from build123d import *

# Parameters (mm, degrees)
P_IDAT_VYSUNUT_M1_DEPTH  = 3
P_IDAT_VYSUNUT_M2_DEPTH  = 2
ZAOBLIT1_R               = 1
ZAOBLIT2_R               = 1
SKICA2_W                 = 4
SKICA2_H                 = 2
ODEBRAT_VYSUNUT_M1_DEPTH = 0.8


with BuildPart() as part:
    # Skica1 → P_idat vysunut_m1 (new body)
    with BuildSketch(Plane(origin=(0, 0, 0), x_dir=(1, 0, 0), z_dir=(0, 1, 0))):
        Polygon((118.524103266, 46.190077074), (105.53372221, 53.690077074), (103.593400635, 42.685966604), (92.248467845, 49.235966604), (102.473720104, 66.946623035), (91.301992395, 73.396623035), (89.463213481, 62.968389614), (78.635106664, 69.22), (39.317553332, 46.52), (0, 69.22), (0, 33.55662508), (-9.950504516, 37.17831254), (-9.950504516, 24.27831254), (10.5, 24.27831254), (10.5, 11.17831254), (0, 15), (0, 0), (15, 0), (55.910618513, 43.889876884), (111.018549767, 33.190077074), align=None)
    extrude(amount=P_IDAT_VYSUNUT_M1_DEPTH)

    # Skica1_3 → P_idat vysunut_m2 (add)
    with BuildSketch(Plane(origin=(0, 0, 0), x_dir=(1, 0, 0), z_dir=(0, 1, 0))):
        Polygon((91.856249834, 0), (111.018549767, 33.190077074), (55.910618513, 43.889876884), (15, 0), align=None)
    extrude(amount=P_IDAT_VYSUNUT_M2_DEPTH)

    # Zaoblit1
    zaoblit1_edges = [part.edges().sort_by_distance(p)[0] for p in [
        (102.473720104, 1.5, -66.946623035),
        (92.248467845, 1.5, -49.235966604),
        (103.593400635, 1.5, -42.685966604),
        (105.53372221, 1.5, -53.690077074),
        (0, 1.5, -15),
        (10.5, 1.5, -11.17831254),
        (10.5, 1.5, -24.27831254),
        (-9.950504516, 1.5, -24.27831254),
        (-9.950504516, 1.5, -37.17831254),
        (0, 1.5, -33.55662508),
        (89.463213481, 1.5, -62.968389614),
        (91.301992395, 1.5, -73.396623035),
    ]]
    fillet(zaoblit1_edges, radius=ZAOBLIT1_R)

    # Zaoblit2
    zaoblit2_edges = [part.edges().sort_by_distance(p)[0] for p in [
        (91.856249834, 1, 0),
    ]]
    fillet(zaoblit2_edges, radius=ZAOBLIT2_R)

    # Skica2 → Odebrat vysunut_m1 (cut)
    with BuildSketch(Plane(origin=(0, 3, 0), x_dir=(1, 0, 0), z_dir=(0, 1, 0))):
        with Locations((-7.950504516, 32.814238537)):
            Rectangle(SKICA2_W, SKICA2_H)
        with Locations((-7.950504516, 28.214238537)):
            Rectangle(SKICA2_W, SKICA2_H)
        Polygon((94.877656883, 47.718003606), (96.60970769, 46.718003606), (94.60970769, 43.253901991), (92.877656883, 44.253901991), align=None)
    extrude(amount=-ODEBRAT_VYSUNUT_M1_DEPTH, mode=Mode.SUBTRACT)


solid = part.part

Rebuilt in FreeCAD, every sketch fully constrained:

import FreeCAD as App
import Part
import Sketcher
Q = App.Units.Quantity


def edges_at(feature, points):
    """Names of the edges that pass closest to the given points."""
    edges = feature.Shape.Edges
    near = lambda p: min(range(len(edges)), key=lambda i: edges[i].distToShape(Part.Vertex(*p))[0])
    return sorted({f"Edge{near(p) + 1}" for p in points})

doc = App.newDocument("Part")
body = doc.addObject("PartDesign::Body", "Body")

# Sketch on XZ plane
sketch1 = doc.addObject("Sketcher::SketchObject", "Sketch")
body.addObject(sketch1)
sketch1.AttachmentSupport = (doc.XZ_Plane, [""])
sketch1.MapMode = "FlatFace"
sketch1.addGeometry([
    Part.LineSegment(App.Vector(119, -46, 0), App.Vector(106, -54, 0)),  # 0
    Part.LineSegment(App.Vector(106, -54, 0), App.Vector(104, -43, 0)),  # 1
    Part.LineSegment(App.Vector(104, -43, 0), App.Vector(92, -49, 0)),  # 2
    Part.LineSegment(App.Vector(92, -49, 0), App.Vector(102, -67, 0)),  # 3
    Part.LineSegment(App.Vector(102, -67, 0), App.Vector(91, -73, 0)),  # 4
    Part.LineSegment(App.Vector(91, -73, 0), App.Vector(89, -63, 0)),  # 5
    Part.LineSegment(App.Vector(89, -63, 0), App.Vector(79, -69, 0)),  # 6
    Part.LineSegment(App.Vector(79, -69, 0), App.Vector(39, -47, 0)),  # 7
    Part.LineSegment(App.Vector(39, -47, 0), App.Vector(0, -69, 0)),  # 8
    Part.LineSegment(App.Vector(0, -69, 0), App.Vector(0, -34, 0)),  # 9
    Part.LineSegment(App.Vector(0, -34, 0), App.Vector(-10, -37, 0)),  # 10
    Part.LineSegment(App.Vector(-10, -37, 0), App.Vector(-10, -24, 0)),  # 11
    Part.LineSegment(App.Vector(-10, -24, 0), App.Vector(10, -24, 0)),  # 12
    Part.LineSegment(App.Vector(10, -24, 0), App.Vector(10, -11, 0)),  # 13
    Part.LineSegment(App.Vector(10, -11, 0), App.Vector(0, -15, 0)),  # 14
    Part.LineSegment(App.Vector(0, -15, 0), App.Vector(0, 0, 0)),  # 15
    Part.LineSegment(App.Vector(0, 0, 0), App.Vector(15, 0, 0)),  # 16
    Part.LineSegment(App.Vector(15, 0, 0), App.Vector(56, -44, 0)),  # 17
    Part.LineSegment(App.Vector(56, -44, 0), App.Vector(111, -33, 0)),  # 18
    Part.LineSegment(App.Vector(111, -33, 0), App.Vector(119, -46, 0)),  # 19
], False)
sketch1.addConstraint([
    Sketcher.Constraint("Coincident", 0, 2, 1, 1),
    Sketcher.Constraint("Coincident", 1, 2, 2, 1),
    Sketcher.Constraint("Coincident", 2, 2, 3, 1),
    Sketcher.Constraint("Coincident", 3, 2, 4, 1),
    Sketcher.Constraint("Coincident", 4, 2, 5, 1),
    Sketcher.Constraint("Coincident", 5, 2, 6, 1),
    Sketcher.Constraint("Coincident", 6, 2, 7, 1),
    Sketcher.Constraint("Coincident", 7, 2, 8, 1),
    Sketcher.Constraint("Coincident", 8, 2, 9, 1),
    Sketcher.Constraint("Coincident", 9, 2, 10, 1),
    Sketcher.Constraint("Coincident", 10, 2, 11, 1),
    Sketcher.Constraint("Coincident", 11, 2, 12, 1),
    Sketcher.Constraint("Coincident", 12, 2, 13, 1),
    Sketcher.Constraint("Coincident", 13, 2, 14, 1),
    Sketcher.Constraint("Coincident", 14, 2, 15, 1),
    Sketcher.Constraint("Coincident", 15, 2, 16, 1),
    Sketcher.Constraint("Coincident", 16, 2, 17, 1),
    Sketcher.Constraint("Coincident", 17, 2, 18, 1),
    Sketcher.Constraint("Coincident", 18, 2, 19, 1),
    Sketcher.Constraint("Coincident", 19, 2, 0, 1),
    Sketcher.Constraint("Vertical", 9),
    Sketcher.Constraint("Vertical", 11),
    Sketcher.Constraint("Horizontal", 12),
    Sketcher.Constraint("Vertical", 13),
    Sketcher.Constraint("Vertical", 15),
    Sketcher.Constraint("Horizontal", 16),
    Sketcher.Constraint("Coincident", 15, 2, -1, 1),
    Sketcher.Constraint("PointOnObject", 8, 2, -2),
    Sketcher.Constraint("Parallel", 0, 2),
    Sketcher.Constraint("Perpendicular", 2, 3),
    Sketcher.Constraint("Perpendicular", 3, 4),
    Sketcher.Constraint("Parallel", 1, 5),
    Sketcher.Constraint("Parallel", 4, 6),
    Sketcher.Constraint("Parallel", 6, 8),
    Sketcher.Constraint("Parallel", 10, 14),
    Sketcher.Constraint("Perpendicular", 8, 19),
    Sketcher.Constraint("Horizontal", 6, 2, 8, 2),
    Sketcher.Constraint("Equal", 16, 15),
    Sketcher.Constraint("Equal", 7, 8),
    Sketcher.Constraint("Equal", 5, 10),
    Sketcher.Constraint("Equal", 1, 14),
    Sketcher.Constraint("DistanceX", 16, 1, 16, 2, Q("15 mm")),
    Sketcher.Constraint("Angle", 0, Q("-150 deg")),
    Sketcher.Constraint("Angle", 1, Q("100 deg")),
    Sketcher.Constraint("Angle", 10, Q("-160 deg")),
    Sketcher.Constraint("Distance", 0, Q("15 mm")),
    Sketcher.Constraint("Distance", 17, Q("60 mm")),
    Sketcher.Constraint("DistanceY", 11, 1, 11, 2, Q("12.9 mm")),
    Sketcher.Constraint("DistanceY", 13, 1, 13, 2, Q("13.1 mm")),
    Sketcher.Constraint("DistanceY", 19, 2, 18, 2, Q("13 mm")),
    Sketcher.Constraint("Distance", 2, Q("13.1 mm")),
    Sketcher.Constraint("Distance", 4, Q("12.9 mm")),
    Sketcher.Constraint("Distance", 7, Q("45.4 mm")),
    Sketcher.Constraint("DistanceX", -1, 1, 12, 2, Q("10.5 mm")),
    Sketcher.Constraint("DistanceY", 6, 2, -1, 1, Q("69.22 mm")),
    Sketcher.Constraint("DistanceX", -1, 1, 1, 2, Q("103.593401 mm")),
    Sketcher.Constraint("Distance", 6, Q("12.503221 mm")),
    Sketcher.Constraint("DistanceX", 12, 1, 12, 2, Q("20.450505 mm")),
    Sketcher.Constraint("DistanceX", -1, 1, 17, 2, Q("55.910619 mm")),
])
pad1 = doc.addObject("PartDesign::Pad", "Pad")
body.addObject(pad1)
pad1.Profile = sketch1
pad1.Length = 3
pad1.Reversed = True

# Sketch on XZ plane
sketch2 = doc.addObject("Sketcher::SketchObject", "Sketch001")
body.addObject(sketch2)
sketch2.AttachmentSupport = (doc.XZ_Plane, [""])
sketch2.MapMode = "FlatFace"
sketch2.addGeometry([
    Part.LineSegment(App.Vector(92, 0, 0), App.Vector(111, -33, 0)),
    Part.LineSegment(App.Vector(111, -33, 0), App.Vector(56, -44, 0)),
    Part.LineSegment(App.Vector(56, -44, 0), App.Vector(15, 0, 0)),
    Part.LineSegment(App.Vector(15, 0, 0), App.Vector(92, 0, 0)),
], False)
sketch2.addConstraint([
    Sketcher.Constraint("Coincident", 0, 2, 1, 1),
    Sketcher.Constraint("Coincident", 1, 2, 2, 1),
    Sketcher.Constraint("Coincident", 2, 2, 3, 1),
    Sketcher.Constraint("Coincident", 3, 2, 0, 1),
    Sketcher.Constraint("Horizontal", 3),
    Sketcher.Constraint("PointOnObject", 2, 2, -1),
    Sketcher.Constraint("Angle", 0, Q("-60 deg")),
    Sketcher.Constraint("Distance", 2, Q("60 mm")),
    Sketcher.Constraint("DistanceX", -1, 1, 2, 2, Q("15 mm")),
    Sketcher.Constraint("Distance", 0, Q("38.3246 mm")),
    Sketcher.Constraint("DistanceX", 3, 1, 3, 2, Q("76.85625 mm")),
    Sketcher.Constraint("DistanceY", 1, 2, 0, 2, Q("10.6998 mm")),
])
pad2 = doc.addObject("PartDesign::Pad", "Pad001")
body.addObject(pad2)
pad2.Profile = sketch2
pad2.Length = 2
pad2.Reversed = True
doc.recompute()

fillet = doc.addObject("PartDesign::Fillet", "Fillet")
body.addObject(fillet)
fillet.Base = (pad2, edges_at(pad2, [
    (102.474, 1.5, -66.947),
    (92.248, 1.5, -49.236),
    (103.593, 1.5, -42.686),
    (105.534, 1.5, -53.69),
    (0, 1.5, -15),
    (10.5, 1.5, -11.178),
    (10.5, 1.5, -24.278),
    (-9.951, 1.5, -24.278),
    (-9.951, 1.5, -37.178),
    (0, 1.5, -33.557),
    (89.463, 1.5, -62.968),
    (91.302, 1.5, -73.397),
]))
fillet.Radius = 1
doc.recompute()

fillet2 = doc.addObject("PartDesign::Fillet", "Fillet001")
body.addObject(fillet2)
fillet2.Base = (fillet, edges_at(fillet, [(91.856, 1, 0)]))
fillet2.Radius = 1

# Sketch on XZ plane
sketch3 = doc.addObject("Sketcher::SketchObject", "Sketch002")
body.addObject(sketch3)
sketch3.AttachmentSupport = (doc.XZ_Plane, [""])
sketch3.MapMode = "FlatFace"
sketch3.AttachmentOffset = App.Placement(App.Vector(0, 0, -3), App.Rotation())
sketch3.addGeometry([
    Part.LineSegment(App.Vector(-10, -33.8, 0), App.Vector(-10, -31.8, 0)),  # 0
    Part.LineSegment(App.Vector(-10, -31.8, 0), App.Vector(-6, -31.8, 0)),  # 1
    Part.LineSegment(App.Vector(-6, -31.8, 0), App.Vector(-6, -33.8, 0)),  # 2
    Part.LineSegment(App.Vector(-6, -33.8, 0), App.Vector(-10, -33.8, 0)),  # 3
    Part.LineSegment(App.Vector(-10, -29.2, 0), App.Vector(-10, -27.2, 0)),  # 4
    Part.LineSegment(App.Vector(-10, -27.2, 0), App.Vector(-6, -27.2, 0)),  # 5
    Part.LineSegment(App.Vector(-6, -27.2, 0), App.Vector(-6, -29.2, 0)),  # 6
    Part.LineSegment(App.Vector(-6, -29.2, 0), App.Vector(-10, -29.2, 0)),  # 7
    Part.LineSegment(App.Vector(96.6, -46.7, 0), App.Vector(94.9, -47.7, 0)),  # 8
    Part.LineSegment(App.Vector(94.9, -47.7, 0), App.Vector(92.9, -44.3, 0)),  # 9
    Part.LineSegment(App.Vector(92.9, -44.3, 0), App.Vector(94.6, -43.3, 0)),  # 10
    Part.LineSegment(App.Vector(94.6, -43.3, 0), App.Vector(96.6, -46.7, 0)),  # 11
], False)
sketch3.addConstraint([
    Sketcher.Constraint("Coincident", 0, 2, 1, 1),
    Sketcher.Constraint("Coincident", 1, 2, 2, 1),
    Sketcher.Constraint("Coincident", 2, 2, 3, 1),
    Sketcher.Constraint("Coincident", 3, 2, 0, 1),
    Sketcher.Constraint("Coincident", 4, 2, 5, 1),
    Sketcher.Constraint("Coincident", 5, 2, 6, 1),
    Sketcher.Constraint("Coincident", 6, 2, 7, 1),
    Sketcher.Constraint("Coincident", 7, 2, 4, 1),
    Sketcher.Constraint("Coincident", 8, 2, 9, 1),
    Sketcher.Constraint("Coincident", 9, 2, 10, 1),
    Sketcher.Constraint("Coincident", 10, 2, 11, 1),
    Sketcher.Constraint("Coincident", 11, 2, 8, 1),
    Sketcher.Constraint("Vertical", 0),
    Sketcher.Constraint("Horizontal", 1),
    Sketcher.Constraint("Vertical", 2),
    Sketcher.Constraint("Horizontal", 3),
    Sketcher.Constraint("Vertical", 4),
    Sketcher.Constraint("Horizontal", 5),
    Sketcher.Constraint("Vertical", 6),
    Sketcher.Constraint("Horizontal", 7),
    Sketcher.Constraint("Perpendicular", 8, 9),
    Sketcher.Constraint("Perpendicular", 9, 10),
    Sketcher.Constraint("Perpendicular", 10, 11),
    Sketcher.Constraint("Vertical", 3, 2, 4, 2),
    Sketcher.Constraint("Vertical", 2, 2, 5, 2),
    Sketcher.Constraint("Equal", 2, 4),
    Sketcher.Constraint("DistanceX", 1, 1, 1, 2, Q("4 mm")),
    Sketcher.Constraint("DistanceY", 0, 1, 0, 2, Q("2 mm")),
    Sketcher.Constraint("Angle", 8, Q("-150 deg")),
    Sketcher.Constraint("Distance", 8, Q("2 mm")),
    Sketcher.Constraint("Distance", 9, Q("4 mm")),
    Sketcher.Constraint("DistanceY", 0, 2, 4, 2, Q("4.6 mm")),
    Sketcher.Constraint("DistanceY", 9, 2, -1, 1, Q("44.253902 mm")),
    Sketcher.Constraint("DistanceY", 0, 2, -1, 1, Q("31.814239 mm")),
    Sketcher.Constraint("DistanceX", 2, 2, 8, 2, Q("100.828161 mm")),
    Sketcher.Constraint("DistanceX", 0, 2, -1, 1, Q("9.950505 mm")),
])
pocket1 = doc.addObject("PartDesign::Pocket", "Pocket")
body.addObject(pocket1)
pocket1.Profile = sketch3
pocket1.Length = 0.8
pocket1.Reversed = True

doc.recompute()
